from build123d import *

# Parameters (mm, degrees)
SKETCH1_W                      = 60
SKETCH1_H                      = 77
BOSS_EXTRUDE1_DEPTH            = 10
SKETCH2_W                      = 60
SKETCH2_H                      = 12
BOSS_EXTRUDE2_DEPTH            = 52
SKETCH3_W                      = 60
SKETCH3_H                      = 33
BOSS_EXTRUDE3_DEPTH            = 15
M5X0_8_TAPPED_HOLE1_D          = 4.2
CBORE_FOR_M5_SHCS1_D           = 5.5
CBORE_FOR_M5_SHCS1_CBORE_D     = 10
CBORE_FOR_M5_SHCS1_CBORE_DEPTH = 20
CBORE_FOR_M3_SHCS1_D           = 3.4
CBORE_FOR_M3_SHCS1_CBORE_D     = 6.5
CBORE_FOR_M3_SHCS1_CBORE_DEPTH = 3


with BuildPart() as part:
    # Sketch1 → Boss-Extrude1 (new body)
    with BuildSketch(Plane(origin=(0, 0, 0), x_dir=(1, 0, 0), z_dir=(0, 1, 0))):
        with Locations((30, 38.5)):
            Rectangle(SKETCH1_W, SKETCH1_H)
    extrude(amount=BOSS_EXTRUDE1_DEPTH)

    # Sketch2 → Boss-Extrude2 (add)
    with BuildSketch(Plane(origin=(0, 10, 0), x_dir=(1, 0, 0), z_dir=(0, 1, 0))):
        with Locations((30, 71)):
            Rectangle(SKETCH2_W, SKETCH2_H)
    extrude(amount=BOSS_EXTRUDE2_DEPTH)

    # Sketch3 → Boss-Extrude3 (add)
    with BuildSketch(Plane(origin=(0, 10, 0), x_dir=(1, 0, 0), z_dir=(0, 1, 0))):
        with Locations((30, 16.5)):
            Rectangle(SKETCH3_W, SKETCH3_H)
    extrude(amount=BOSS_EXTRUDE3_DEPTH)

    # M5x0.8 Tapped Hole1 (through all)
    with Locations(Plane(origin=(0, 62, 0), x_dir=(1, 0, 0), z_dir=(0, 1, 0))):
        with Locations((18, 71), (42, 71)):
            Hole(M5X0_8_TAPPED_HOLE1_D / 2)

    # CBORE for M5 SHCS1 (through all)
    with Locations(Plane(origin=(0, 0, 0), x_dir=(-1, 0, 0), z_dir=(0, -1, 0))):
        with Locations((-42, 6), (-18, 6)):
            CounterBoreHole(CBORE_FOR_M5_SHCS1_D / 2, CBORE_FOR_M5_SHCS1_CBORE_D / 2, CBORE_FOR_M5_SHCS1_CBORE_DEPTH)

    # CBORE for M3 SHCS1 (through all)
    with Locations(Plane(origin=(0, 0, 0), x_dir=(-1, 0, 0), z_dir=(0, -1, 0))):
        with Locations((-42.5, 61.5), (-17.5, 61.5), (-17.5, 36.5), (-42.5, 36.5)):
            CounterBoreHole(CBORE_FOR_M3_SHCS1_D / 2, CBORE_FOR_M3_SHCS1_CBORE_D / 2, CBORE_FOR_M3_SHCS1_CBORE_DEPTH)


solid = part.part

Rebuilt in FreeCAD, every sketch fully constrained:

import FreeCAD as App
import Part
import Sketcher

doc = App.newDocument("Part")
body = doc.addObject("PartDesign::Body", "Body")

sketch1 = body.newObject("Sketcher::SketchObject", "Sketch")
sketch1.AttachmentSupport = (doc.getObject("XZ_Plane"), [""])
sketch1.MapMode = "FlatFace"
sketch1.addGeometry(Part.LineSegment(App.Vector(0, -77, 0), App.Vector(0, 0, 0)), False)
sketch1.addGeometry(Part.LineSegment(App.Vector(0, 0, 0), App.Vector(60, 0, 0)), False)
sketch1.addGeometry(Part.LineSegment(App.Vector(60, 0, 0), App.Vector(60, -77, 0)), False)
sketch1.addGeometry(Part.LineSegment(App.Vector(60, -77, 0), App.Vector(0, -77, 0)), False)
sketch1.addConstraint(Sketcher.Constraint("Coincident", 0, 2, 1, 1))
sketch1.addConstraint(Sketcher.Constraint("Coincident", 1, 2, 2, 1))
sketch1.addConstraint(Sketcher.Constraint("Coincident", 2, 2, 3, 1))
sketch1.addConstraint(Sketcher.Constraint("Coincident", 3, 2, 0, 1))
sketch1.addConstraint(Sketcher.Constraint("Vertical", 0))
sketch1.addConstraint(Sketcher.Constraint("Horizontal", 1))
sketch1.addConstraint(Sketcher.Constraint("Vertical", 2))
sketch1.addConstraint(Sketcher.Constraint("Horizontal", 3))
sketch1.addConstraint(Sketcher.Constraint("Coincident", 0, 2, -1, 1))
sketch1.addConstraint(Sketcher.Constraint("DistanceX", 1, 1, 1, 2, 60.0))
sketch1.addConstraint(Sketcher.Constraint("DistanceY", 0, 1, 0, 2, 77.0))
pad1 = body.newObject("PartDesign::Pad", "Pad")
pad1.Profile = sketch1
pad1.Length = 10
pad1.Reversed = True

sketch2 = body.newObject("Sketcher::SketchObject", "Sketch001")
sketch2.AttachmentSupport = (doc.getObject("XZ_Plane"), [""])
sketch2.MapMode = "FlatFace"
sketch2.AttachmentOffset = App.Placement(App.Vector(0, 0, -10), App.Rotation())
sketch2.addGeometry(Part.LineSegment(App.Vector(0, -77, 0), App.Vector(0, -65, 0)), False)
sketch2.addGeometry(Part.LineSegment(App.Vector(0, -65, 0), App.Vector(60, -65, 0)), False)
sketch2.addGeometry(Part.LineSegment(App.Vector(60, -65, 0), App.Vector(60, -77, 0)), False)
sketch2.addGeometry(Part.LineSegment(App.Vector(60, -77, 0), App.Vector(0, -77, 0)), False)
sketch2.addConstraint(Sketcher.Constraint("Coincident", 0, 2, 1, 1))
sketch2.addConstraint(Sketcher.Constraint("Coincident", 1, 2, 2, 1))
sketch2.addConstraint(Sketcher.Constraint("Coincident", 2, 2, 3, 1))
sketch2.addConstraint(Sketcher.Constraint("Coincident", 3, 2, 0, 1))
sketch2.addConstraint(Sketcher.Constraint("Vertical", 0))
sketch2.addConstraint(Sketcher.Constraint("Horizontal", 1))
sketch2.addConstraint(Sketcher.Constraint("Vertical", 2))
sketch2.addConstraint(Sketcher.Constraint("Horizontal", 3))
sketch2.addConstraint(Sketcher.Constraint("PointOnObject", 0, 2, -2))
sketch2.addConstraint(Sketcher.Constraint("DistanceX", 1, 1, 1, 2, 60.0))
sketch2.addConstraint(Sketcher.Constraint("DistanceY", 0, 1, 0, 2, 12.0))
sketch2.addConstraint(Sketcher.Constraint("DistanceY", 0, 2, -1, 1, 65.0))
pad2 = body.newObject("PartDesign::Pad", "Pad001")
pad2.Profile = sketch2
pad2.Length = 52
pad2.Reversed = True

sketch3 = body.newObject("Sketcher::SketchObject", "Sketch002")
sketch3.AttachmentSupport = (doc.getObject("XZ_Plane"), [""])
sketch3.MapMode = "FlatFace"
sketch3.AttachmentOffset = App.Placement(App.Vector(0, 0, -10), App.Rotation())
sketch3.addGeometry(Part.LineSegment(App.Vector(0, -33, 0), App.Vector(0, 0, 0)), False)
sketch3.addGeometry(Part.LineSegment(App.Vector(0, 0, 0), App.Vector(60, 0, 0)), False)
sketch3.addGeometry(Part.LineSegment(App.Vector(60, 0, 0), App.Vector(60, -33, 0)), False)
sketch3.addGeometry(Part.LineSegment(App.Vector(60, -33, 0), App.Vector(0, -33, 0)), False)
sketch3.addConstraint(Sketcher.Constraint("Coincident", 0, 2, 1, 1))
sketch3.addConstraint(Sketcher.Constraint("Coincident", 1, 2, 2, 1))
sketch3.addConstraint(Sketcher.Constraint("Coincident", 2, 2, 3, 1))
sketch3.addConstraint(Sketcher.Constraint("Coincident", 3, 2, 0, 1))
sketch3.addConstraint(Sketcher.Constraint("Vertical", 0))
sketch3.addConstraint(Sketcher.Constraint("Horizontal", 1))
sketch3.addConstraint(Sketcher.Constraint("Vertical", 2))
sketch3.addConstraint(Sketcher.Constraint("Horizontal", 3))
sketch3.addConstraint(Sketcher.Constraint("Coincident", 0, 2, -1, 1))
sketch3.addConstraint(Sketcher.Constraint("DistanceX", 1, 1, 1, 2, 60.0))
sketch3.addConstraint(Sketcher.Constraint("DistanceY", 0, 1, 0, 2, 33.0))
pad3 = body.newObject("PartDesign::Pad", "Pad002")
pad3.Profile = sketch3
pad3.Length = 15
pad3.Reversed = True

sketch4 = body.newObject("Sketcher::SketchObject", "Sketch003")
sketch4.AttachmentSupport = (doc.getObject("XZ_Plane"), [""])
sketch4.MapMode = "FlatFace"
sketch4.AttachmentOffset = App.Placement(App.Vector(0, 0, -62), App.Rotation())
sketch4.addGeometry(Part.Circle(App.Vector(18, -71, 0), App.Vector(0, 0, 1), 2.1), False)
sketch4.addGeometry(Part.Circle(App.Vector(42, -71, 0), App.Vector(0, 0, 1), 2.1), False)
sketch4.addConstraint(Sketcher.Constraint("Equal", 0, 1))
sketch4.addConstraint(Sketcher.Constraint("Horizontal", 0, 3, 1, 3))
sketch4.addConstraint(Sketcher.Constraint("Diameter", 0, 4.2))
sketch4.addConstraint(Sketcher.Constraint("DistanceX", -1, 1, 0, 3, 18.0))
sketch4.addConstraint(Sketcher.Constraint("DistanceY", 0, 3, -1, 1, 71.0))
sketch4.addConstraint(Sketcher.Constraint("DistanceX", -1, 1, 1, 3, 42.0))
doc.recompute()
hole = body.newObject("PartDesign::Hole", "Hole")
hole.Profile = sketch4
hole.ThreadType = "None"
hole.Diameter = 4.2
hole.DepthType = "ThroughAll"
hole.Reversed = True

sketch5 = body.newObject("Sketcher::SketchObject", "Sketch004")
sketch5.AttachmentSupport = (doc.getObject("XZ_Plane"), [""])
sketch5.MapMode = "FlatFace"
sketch5.addGeometry(Part.Circle(App.Vector(42, -6, 0), App.Vector(0, 0, 1), 2.8), False)
sketch5.addGeometry(Part.Circle(App.Vector(18, -6, 0), App.Vector(0, 0, 1), 2.8), False)
sketch5.addConstraint(Sketcher.Constraint("Equal", 0, 1))
sketch5.addConstraint(Sketcher.Constraint("Horizontal", 0, 3, 1, 3))
sketch5.addConstraint(Sketcher.Constraint("Diameter", 0, 5.5))
sketch5.addConstraint(Sketcher.Constraint("DistanceX", -1, 1, 0, 3, 42.0))
sketch5.addConstraint(Sketcher.Constraint("DistanceY", 0, 3, -1, 1, 6.0))
sketch5.addConstraint(Sketcher.Constraint("DistanceX", -1, 1, 1, 3, 18.0))
doc.recompute()
hole2 = body.newObject("PartDesign::Hole", "Hole001")
hole2.Profile = sketch5
hole2.ThreadType = "None"
hole2.Diameter = 5.5
hole2.DepthType = "ThroughAll"
hole2.HoleCutType = "Counterbore"
hole2.HoleCutDiameter = 10
hole2.HoleCutDepth = 20

sketch6 = body.newObject("Sketcher::SketchObject", "Sketch005")
sketch6.AttachmentSupport = (doc.getObject("XZ_Plane"), [""])
sketch6.MapMode = "FlatFace"
sketch6.addGeometry(Part.Circle(App.Vector(42.5, -61.5, 0), App.Vector(0, 0, 1), 1.7), False)
sketch6.addGeometry(Part.Circle(App.Vector(17.5, -61.5, 0), App.Vector(0, 0, 1), 1.7), False)
sketch6.addGeometry(Part.Circle(App.Vector(17.5, -36.5, 0), App.Vector(0, 0, 1), 1.7), False)
sketch6.addGeometry(Part.Circle(App.Vector(42.5, -36.5, 0), App.Vector(0, 0, 1), 1.7), False)
sketch6.addConstraint(Sketcher.Constraint("Equal", 0, 1))
sketch6.addConstraint(Sketcher.Constraint("Equal", 1, 2))
sketch6.addConstraint(Sketcher.Constraint("Equal", 2, 3))
sketch6.addConstraint(Sketcher.Constraint("Horizontal", 0, 3, 1, 3))
sketch6.addConstraint(Sketcher.Constraint("Horizontal", 2, 3, 3, 3))
sketch6.addConstraint(Sketcher.Constraint("Vertical", 1, 3, 2, 3))
sketch6.addConstraint(Sketcher.Constraint("Vertical", 0, 3, 3, 3))
sketch6.addConstraint(Sketcher.Constraint("Diameter", 0, 3.4))
sketch6.addConstraint(Sketcher.Constraint("DistanceX", 1, 3, 0, 3, 25.0))
sketch6.addConstraint(Sketcher.Constraint("DistanceY", 1, 3, 2, 3, 25.0))
sketch6.addConstraint(Sketcher.Constraint("DistanceX", -1, 1, 0, 3, 42.5))
sketch6.addConstraint(Sketcher.Constraint("DistanceY", 0, 3, -1, 1, 61.5))
doc.recompute()
hole3 = body.newObject("PartDesign::Hole", "Hole002")
hole3.Profile = sketch6
hole3.ThreadType = "None"
hole3.Diameter = 3.4
hole3.DepthType = "ThroughAll"
hole3.HoleCutType = "Counterbore"
hole3.HoleCutDiameter = 6.5
hole3.HoleCutDepth = 3

doc.recompute()
